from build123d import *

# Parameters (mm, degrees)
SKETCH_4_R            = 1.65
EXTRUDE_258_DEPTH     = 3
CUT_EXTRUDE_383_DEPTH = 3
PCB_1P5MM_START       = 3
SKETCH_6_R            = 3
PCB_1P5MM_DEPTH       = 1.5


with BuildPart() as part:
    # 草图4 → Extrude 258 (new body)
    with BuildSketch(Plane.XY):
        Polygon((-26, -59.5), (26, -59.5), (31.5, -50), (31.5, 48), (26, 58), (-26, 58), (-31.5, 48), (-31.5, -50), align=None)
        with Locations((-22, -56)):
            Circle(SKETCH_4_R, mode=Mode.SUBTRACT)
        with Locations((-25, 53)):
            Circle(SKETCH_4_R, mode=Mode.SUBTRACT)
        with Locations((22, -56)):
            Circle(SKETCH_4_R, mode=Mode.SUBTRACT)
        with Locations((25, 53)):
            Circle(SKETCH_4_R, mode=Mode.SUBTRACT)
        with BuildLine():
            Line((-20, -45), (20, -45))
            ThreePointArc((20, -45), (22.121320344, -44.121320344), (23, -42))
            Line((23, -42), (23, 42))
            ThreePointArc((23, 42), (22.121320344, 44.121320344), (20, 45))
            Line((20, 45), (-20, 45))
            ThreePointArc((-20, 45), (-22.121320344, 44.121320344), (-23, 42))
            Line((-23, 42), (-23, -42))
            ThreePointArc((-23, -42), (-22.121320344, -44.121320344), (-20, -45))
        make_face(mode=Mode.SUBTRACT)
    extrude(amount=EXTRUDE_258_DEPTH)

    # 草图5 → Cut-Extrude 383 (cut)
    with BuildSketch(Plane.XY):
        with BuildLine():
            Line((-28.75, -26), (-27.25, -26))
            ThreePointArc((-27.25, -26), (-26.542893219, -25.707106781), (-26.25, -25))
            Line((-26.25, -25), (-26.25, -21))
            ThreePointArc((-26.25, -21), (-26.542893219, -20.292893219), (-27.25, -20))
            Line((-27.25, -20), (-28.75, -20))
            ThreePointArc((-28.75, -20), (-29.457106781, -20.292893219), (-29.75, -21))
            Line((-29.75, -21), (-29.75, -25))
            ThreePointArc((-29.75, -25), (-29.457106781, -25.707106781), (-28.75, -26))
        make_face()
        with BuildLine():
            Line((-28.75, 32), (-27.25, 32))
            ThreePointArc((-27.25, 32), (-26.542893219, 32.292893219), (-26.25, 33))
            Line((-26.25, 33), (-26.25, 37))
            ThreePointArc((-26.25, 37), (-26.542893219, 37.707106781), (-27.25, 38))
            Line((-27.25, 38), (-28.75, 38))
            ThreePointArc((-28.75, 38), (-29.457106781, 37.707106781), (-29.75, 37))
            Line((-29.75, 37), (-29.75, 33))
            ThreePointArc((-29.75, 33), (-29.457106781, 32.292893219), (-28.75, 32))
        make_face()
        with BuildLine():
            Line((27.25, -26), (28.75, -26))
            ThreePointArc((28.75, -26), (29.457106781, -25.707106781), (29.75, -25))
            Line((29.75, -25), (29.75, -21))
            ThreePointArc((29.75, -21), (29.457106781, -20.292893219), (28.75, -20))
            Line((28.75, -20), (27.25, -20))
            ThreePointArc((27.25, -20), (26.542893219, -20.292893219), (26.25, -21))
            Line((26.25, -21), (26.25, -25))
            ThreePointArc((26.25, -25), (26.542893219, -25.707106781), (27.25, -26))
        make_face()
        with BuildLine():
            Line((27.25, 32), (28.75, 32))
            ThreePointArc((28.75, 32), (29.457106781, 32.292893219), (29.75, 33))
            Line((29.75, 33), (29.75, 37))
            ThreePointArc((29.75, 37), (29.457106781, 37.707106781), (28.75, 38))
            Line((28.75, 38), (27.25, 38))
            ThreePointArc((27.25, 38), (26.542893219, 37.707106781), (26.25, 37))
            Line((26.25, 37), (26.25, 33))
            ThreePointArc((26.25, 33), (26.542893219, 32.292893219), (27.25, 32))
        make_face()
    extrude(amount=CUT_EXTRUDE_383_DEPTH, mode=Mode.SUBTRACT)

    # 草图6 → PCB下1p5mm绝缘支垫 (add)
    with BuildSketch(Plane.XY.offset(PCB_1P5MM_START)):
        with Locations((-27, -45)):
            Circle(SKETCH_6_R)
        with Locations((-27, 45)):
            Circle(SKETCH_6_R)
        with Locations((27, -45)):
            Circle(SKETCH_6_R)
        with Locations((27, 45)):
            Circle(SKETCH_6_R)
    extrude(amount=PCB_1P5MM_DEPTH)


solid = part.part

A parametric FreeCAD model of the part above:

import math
import FreeCAD as App
import Part
import Sketcher

V = App.Vector
Q = App.Units.Quantity


def add_polygon(sketch, points):
    """Adds a closed chain of lines whose ends are joined by coincident constraints."""
    first, n = sketch.GeometryCount, len(points)
    for a, b in zip(points, points[1:] + points[:1]):
        sketch.addGeometry(Part.LineSegment(App.Vector(*a, 0), App.Vector(*b, 0)), False)
    for i in range(n):
        sketch.addConstraint(Sketcher.Constraint("Coincident", first + i, 2, first + (i + 1) % n, 1))

doc = App.newDocument("Part")
params = doc.addObject("Spreadsheet::Sheet", "Params")
for row, (alias, value) in enumerate([
    ("sketch1_radius", "3 mm"),
    ("sketch1_diameter", "3.3 mm"),
    ("sketch1_width", "52 mm"),
    ("sketch1_width2", "40 mm"),
    ("sketch1_height", "98 mm"),
    ("pad1_length", "3 mm"),
    ("sketch2_radius", "1 mm"),
    ("sketch2_height", "4 mm"),
    ("sketch2_width", "1.5 mm"),
    ("pocket1_length", "3 mm"),
    ("sketch3_diameter", "6 mm"),
    ("pad2_length", "1.5 mm"),
], start=1):
    params.set(f"A{row}", alias)
    params.set(f"B{row}", "=" + value)
    params.setAlias(f"B{row}", alias)

body = doc.addObject("PartDesign::Body", "Body")

sketch1 = body.newObject("Sketcher::SketchObject", "Sketch")
sketch1.AttachmentSupport = (doc.getObject("XY_Plane"), [""])
sketch1.MapMode = "FlatFace"
add_polygon(sketch1, [(-26, -59.5), (26, -59.5), (31.5, -50), (31.5, 48), (26, 58), (-26, 58), (-31.5, 48), (-31.5, -50)])
sketch1.addGeometry(Part.Circle(V(-22, -56, 0), V(0, 0, 1), 1.6), False)
sketch1.addGeometry(Part.Circle(V(22, -56, 0), V(0, 0, 1), 1.6), False)
sketch1.addGeometry(Part.Circle(V(-25, 53, 0), V(0, 0, 1), 1.6), False)
sketch1.addGeometry(Part.LineSegment(V(20, -45, 0), V(-20, -45, 0)), False)
sketch1.addGeometry(Part.ArcOfCircle(Part.Circle(V(-20, -42, 0), V(0, 0, 1), 3), math.radians(180), math.radians(270)), False)
sketch1.addGeometry(Part.LineSegment(V(-23, -42, 0), V(-23, 42, 0)), False)
sketch1.addGeometry(Part.ArcOfCircle(Part.Circle(V(-20, 42, 0), V(0, 0, 1), 3), math.radians(90), math.radians(180)), False)
sketch1.addGeometry(Part.LineSegment(V(-20, 45, 0), V(20, 45, 0)), False)
sketch1.addGeometry(Part.ArcOfCircle(Part.Circle(V(20, 42, 0), V(0, 0, 1), 3), math.radians(0), math.radians(90)), False)
sketch1.addGeometry(Part.LineSegment(V(23, 42, 0), V(23, -42, 0)), False)
sketch1.addGeometry(Part.ArcOfCircle(Part.Circle(V(20, -42, 0), V(0, 0, 1), 3), math.radians(-90), math.radians(0)), False)
sketch1.addGeometry(Part.Circle(V(25, 53, 0), V(0, 0, 1), 1.6), False)
sketch1.addConstraint([
    Sketcher.Constraint("Tangent", 11, 2, 12, 2),
    Sketcher.Constraint("Tangent", 12, 1, 13, 1),
    Sketcher.Constraint("Tangent", 13, 2, 14, 2),
    Sketcher.Constraint("Tangent", 14, 1, 15, 1),
    Sketcher.Constraint("Tangent", 15, 2, 16, 2),
    Sketcher.Constraint("Tangent", 16, 1, 17, 1),
    Sketcher.Constraint("Tangent", 17, 2, 18, 2),
    Sketcher.Constraint("Tangent", 18, 1, 11, 1),
    Sketcher.Constraint("Horizontal", 0),
    Sketcher.Constraint("Vertical", 2),
    Sketcher.Constraint("Horizontal", 4),
    Sketcher.Constraint("Vertical", 6),
    Sketcher.Constraint("Horizontal", 11),
    Sketcher.Constraint("Vertical", 13),
    Sketcher.Constraint("Horizontal", 15),
    Sketcher.Constraint("Vertical", 17),
    Sketcher.Constraint("Equal", 8, 9),
    Sketcher.Constraint("Equal", 9, 10),
    Sketcher.Constraint("Equal", 12, 14),
    Sketcher.Constraint("Equal", 14, 16),
    Sketcher.Constraint("Equal", 16, 18),
    Sketcher.Constraint("Equal", 10, 19),
    Sketcher.Constraint("Symmetric", 12, 3, 16, 3, -1, 1),
    Sketcher.Constraint("Symmetric", 8, 3, 9, 3, -2),
    Sketcher.Constraint("Symmetric", 10, 3, 19, 3, -2),
    Sketcher.Constraint("Symmetric", 2, 2, 5, 2, -2),
    Sketcher.Constraint("Horizontal", 1, 2, 6, 2),
    Sketcher.Constraint("Vertical", 0, 2, 3, 2),
    Sketcher.Constraint("Vertical", 4, 2, 7, 2),
    Sketcher.Constraint("Equal", 3, 5),
    Sketcher.Constraint("Radius", 12, Q("3 mm")),
    Sketcher.Constraint("Diameter", 8, Q("3.3 mm")),
    Sketcher.Constraint("DistanceX", 0, 1, 0, 2, Q("52 mm")),
    Sketcher.Constraint("DistanceX", 11, 2, 11, 1, Q("40 mm")),
    Sketcher.Constraint("DistanceY", 2, 1, 2, 2, Q("98 mm")),
    Sketcher.Constraint("DistanceY", 13, 1, 13, 2, Q("84 mm")),
    Sketcher.Constraint("DistanceX", 8, 3, -1, 1, Q("22 mm")),
    Sketcher.Constraint("DistanceY", 8, 3, -1, 1, Q("56 mm")),
    Sketcher.Constraint("DistanceX", 10, 3, -1, 1, Q("25 mm")),
    Sketcher.Constraint("DistanceY", -1, 1, 10, 3, Q("53 mm")),
    Sketcher.Constraint("DistanceY", 1, 2, -1, 1, Q("50 mm")),
    Sketcher.Constraint("DistanceY", -1, 1, 3, 2, Q("58 mm")),
    Sketcher.Constraint("DistanceY", 0, 2, -1, 1, Q("59.5 mm")),
    Sketcher.Constraint("DistanceX", -1, 1, 1, 2, Q("31.5 mm")),
])
sketch1.setExpression("Constraints[38]", "Params.sketch1_radius")
sketch1.setExpression("Constraints[39]", "Params.sketch1_diameter")
sketch1.setExpression("Constraints[40]", "Params.sketch1_width")
sketch1.setExpression("Constraints[41]", "Params.sketch1_width2")
sketch1.setExpression("Constraints[42]", "Params.sketch1_height")
pad1 = body.newObject("PartDesign::Pad", "Pad")
pad1.Profile = sketch1
pad1.setExpression("Length", "Params.pad1_length")

sketch2 = body.newObject("Sketcher::SketchObject", "Sketch001")
sketch2.AttachmentSupport = (doc.getObject("XY_Plane"), [""])
sketch2.MapMode = "FlatFace"
sketch2.addGeometry([
    Part.LineSegment(V(-28.8, -26, 0), V(-27.2, -26, 0)),
    Part.ArcOfCircle(Part.Circle(V(-27.3, -25, 0), V(0, 0, 1), 1), math.radians(-90), math.radians(0)),
    Part.LineSegment(V(-26.2, -25, 0), V(-26.2, -21, 0)),
    Part.ArcOfCircle(Part.Circle(V(-27.3, -21, 0), V(0, 0, 1), 1), math.radians(0), math.radians(90)),
    Part.LineSegment(V(-27.2, -20, 0), V(-28.8, -20, 0)),
    Part.ArcOfCircle(Part.Circle(V(-28.7, -21, 0), V(0, 0, 1), 1), math.radians(90), math.radians(180)),
    Part.LineSegment(V(-29.8, -21, 0), V(-29.8, -25, 0)),
    Part.ArcOfCircle(Part.Circle(V(-28.7, -25, 0), V(0, 0, 1), 1), math.radians(-180), math.radians(-90)),
    Part.LineSegment(V(-28.8, 32, 0), V(-27.2, 32, 0)),
    Part.ArcOfCircle(Part.Circle(V(-27.3, 33, 0), V(0, 0, 1), 1), math.radians(-90), math.radians(0)),
    Part.LineSegment(V(-26.2, 33, 0), V(-26.2, 37, 0)),
    Part.ArcOfCircle(Part.Circle(V(-27.3, 37, 0), V(0, 0, 1), 1), math.radians(0), math.radians(90)),
    Part.LineSegment(V(-27.2, 38, 0), V(-28.8, 38, 0)),
    Part.ArcOfCircle(Part.Circle(V(-28.7, 37, 0), V(0, 0, 1), 1), math.radians(90), math.radians(180)),
    Part.LineSegment(V(-29.8, 37, 0), V(-29.8, 33, 0)),
    Part.ArcOfCircle(Part.Circle(V(-28.7, 33, 0), V(0, 0, 1), 1), math.radians(-180), math.radians(-90)),
    Part.LineSegment(V(27.2, -26, 0), V(28.8, -26, 0)),
    Part.ArcOfCircle(Part.Circle(V(28.7, -25, 0), V(0, 0, 1), 1), math.radians(-90), math.radians(0)),
    Part.LineSegment(V(29.8, -25, 0), V(29.8, -21, 0)),
    Part.ArcOfCircle(Part.Circle(V(28.7, -21, 0), V(0, 0, 1), 1), math.radians(0), math.radians(90)),
    Part.LineSegment(V(28.8, -20, 0), V(27.2, -20, 0)),
    Part.ArcOfCircle(Part.Circle(V(27.3, -21, 0), V(0, 0, 1), 1), math.radians(90), math.radians(180)),
    Part.LineSegment(V(26.2, -21, 0), V(26.2, -25, 0)),
    Part.ArcOfCircle(Part.Circle(V(27.3, -25, 0), V(0, 0, 1), 1), math.radians(-180), math.radians(-90)),
    Part.LineSegment(V(27.2, 32, 0), V(28.8, 32, 0)),
    Part.ArcOfCircle(Part.Circle(V(28.7, 33, 0), V(0, 0, 1), 1), math.radians(-90), math.radians(0)),
    Part.LineSegment(V(29.8, 33, 0), V(29.8, 37, 0)),
    Part.ArcOfCircle(Part.Circle(V(28.7, 37, 0), V(0, 0, 1), 1), math.radians(0), math.radians(90)),
    Part.LineSegment(V(28.8, 38, 0), V(27.2, 38, 0)),
    Part.ArcOfCircle(Part.Circle(V(27.3, 37, 0), V(0, 0, 1), 1), math.radians(90), math.radians(180)),
    Part.LineSegment(V(26.2, 37, 0), V(26.2, 33, 0)),
    Part.ArcOfCircle(Part.Circle(V(27.3, 33, 0), V(0, 0, 1), 1), math.radians(-180), math.radians(-90)),
], False)
sketch2.addConstraint([
    Sketcher.Constraint("Tangent", 0, 2, 1, 1),
    Sketcher.Constraint("Tangent", 1, 2, 2, 1),
    Sketcher.Constraint("Tangent", 2, 2, 3, 1),
    Sketcher.Constraint("Tangent", 3, 2, 4, 1),
    Sketcher.Constraint("Tangent", 4, 2, 5, 1),
    Sketcher.Constraint("Tangent", 5, 2, 6, 1),
    Sketcher.Constraint("Tangent", 6, 2, 7, 1),
    Sketcher.Constraint("Tangent", 7, 2, 0, 1),
    Sketcher.Constraint("Tangent", 8, 2, 9, 1),
    Sketcher.Constraint("Tangent", 9, 2, 10, 1),
    Sketcher.Constraint("Tangent", 10, 2, 11, 1),
    Sketcher.Constraint("Tangent", 11, 2, 12, 1),
    Sketcher.Constraint("Tangent", 12, 2, 13, 1),
    Sketcher.Constraint("Tangent", 13, 2, 14, 1),
    Sketcher.Constraint("Tangent", 14, 2, 15, 1),
    Sketcher.Constraint("Tangent", 15, 2, 8, 1),
    Sketcher.Constraint("Tangent", 16, 2, 17, 1),
    Sketcher.Constraint("Tangent", 17, 2, 18, 1),
    Sketcher.Constraint("Tangent", 18, 2, 19, 1),
    Sketcher.Constraint("Tangent", 19, 2, 20, 1),
    Sketcher.Constraint("Tangent", 20, 2, 21, 1),
    Sketcher.Constraint("Tangent", 21, 2, 22, 1),
    Sketcher.Constraint("Tangent", 22, 2, 23, 1),
    Sketcher.Constraint("Tangent", 23, 2, 16, 1),
    Sketcher.Constraint("Tangent", 24, 2, 25, 1),
    Sketcher.Constraint("Tangent", 25, 2, 26, 1),
    Sketcher.Constraint("Tangent", 26, 2, 27, 1),
    Sketcher.Constraint("Tangent", 27, 2, 28, 1),
    Sketcher.Constraint("Tangent", 28, 2, 29, 1),
    Sketcher.Constraint("Tangent", 29, 2, 30, 1),
    Sketcher.Constraint("Tangent", 30, 2, 31, 1),
    Sketcher.Constraint("Tangent", 31, 2, 24, 1),
    Sketcher.Constraint("Horizontal", 0),
    Sketcher.Constraint("Vertical", 2),
    Sketcher.Constraint("Horizontal", 4),
    Sketcher.Constraint("Vertical", 6),
    Sketcher.Constraint("Horizontal", 8),
    Sketcher.Constraint("Vertical", 10),
    Sketcher.Constraint("Horizontal", 12),
    Sketcher.Constraint("Vertical", 14),
    Sketcher.Constraint("Horizontal", 16),
    Sketcher.Constraint("Vertical", 18),
    Sketcher.Constraint("Horizontal", 20),
    Sketcher.Constraint("Vertical", 22),
    Sketcher.Constraint("Horizontal", 24),
    Sketcher.Constraint("Vertical", 26),
    Sketcher.Constraint("Horizontal", 28),
    Sketcher.Constraint("Vertical", 30),
    Sketcher.Constraint("Equal", 1, 3),
    Sketcher.Constraint("Equal", 3, 5),
    Sketcher.Constraint("Equal", 5, 7),
    Sketcher.Constraint("Equal", 7, 9),
    Sketcher.Constraint("Equal", 9, 11),
    Sketcher.Constraint("Equal", 11, 13),
    Sketcher.Constraint("Equal", 13, 15),
    Sketcher.Constraint("Equal", 15, 17),
    Sketcher.Constraint("Equal", 17, 19),
    Sketcher.Constraint("Equal", 19, 21),
    Sketcher.Constraint("Equal", 21, 23),
    Sketcher.Constraint("Equal", 23, 25),
    Sketcher.Constraint("Equal", 25, 27),
    Sketcher.Constraint("Equal", 27, 29),
    Sketcher.Constraint("Equal", 29, 31),
    Sketcher.Constraint("Symmetric", 7, 3, 17, 3, -2),
    Sketcher.Constraint("Symmetric", 3, 3, 21, 3, -2),
    Sketcher.Constraint("Symmetric", 15, 3, 25, 3, -2),
    Sketcher.Constraint("Symmetric", 11, 3, 29, 3, -2),
    Sketcher.Constraint("Vertical", 3, 3, 9, 3),
    Sketcher.Constraint("Vertical", 7, 3, 13, 3),
    Sketcher.Constraint("Equal", 6, 10),
    Sketcher.Constraint("Radius", 1, Q("1 mm")),
    Sketcher.Constraint("DistanceY", 2, 1, 2, 2, Q("4 mm")),
    Sketcher.Constraint("DistanceX", 0, 1, 0, 2, Q("1.5 mm")),
    Sketcher.Constraint("DistanceY", 1, 3, -1, 1, Q("25 mm")),
    Sketcher.Constraint("DistanceY", -1, 1, 9, 3, Q("33 mm")),
    Sketcher.Constraint("DistanceX", 1, 3, 17, 3, Q("56 mm")),
])
sketch2.setExpression("Constraints[70]", "Params.sketch2_radius")
sketch2.setExpression("Constraints[71]", "Params.sketch2_height")
sketch2.setExpression("Constraints[72]", "Params.sketch2_width")
pocket1 = body.newObject("PartDesign::Pocket", "Pocket")
pocket1.Profile = sketch2
pocket1.setExpression("Length", "Params.pocket1_length")
pocket1.Reversed = True

sketch3 = body.newObject("Sketcher::SketchObject", "Sketch002")
sketch3.AttachmentSupport = (doc.getObject("XY_Plane"), [""])
sketch3.MapMode = "FlatFace"
sketch3.AttachmentOffset = App.Placement(V(0, 0, 3), App.Rotation())
sketch3.addGeometry([
    Part.Circle(V(-27, -45, 0), V(0, 0, 1), 3),
    Part.Circle(V(-27, 45, 0), V(0, 0, 1), 3),
    Part.Circle(V(27, -45, 0), V(0, 0, 1), 3),
    Part.Circle(V(27, 45, 0), V(0, 0, 1), 3),
], False)
sketch3.addConstraint([
    Sketcher.Constraint("Equal", 0, 1),
    Sketcher.Constraint("Equal", 1, 2),
    Sketcher.Constraint("Equal", 2, 3),
    Sketcher.Constraint("Symmetric", 1, 3, 2, 3, -1, 1),
    Sketcher.Constraint("Symmetric", 0, 3, 3, 3, -1, 1),
    Sketcher.Constraint("Symmetric", 0, 3, 2, 3, -2),
    Sketcher.Constraint("Diameter", 0, Q("6 mm")),
    Sketcher.Constraint("DistanceX", 0, 3, -1, 1, Q("27 mm")),
    Sketcher.Constraint("DistanceY", 0, 3, -1, 1, Q("45 mm")),
])
sketch3.setExpression("Constraints[6]", "Params.sketch3_diameter")
pad2 = body.newObject("PartDesign::Pad", "Pad001")
pad2.Profile = sketch3
pad2.setExpression("Length", "Params.pad2_length")

doc.recompute()
